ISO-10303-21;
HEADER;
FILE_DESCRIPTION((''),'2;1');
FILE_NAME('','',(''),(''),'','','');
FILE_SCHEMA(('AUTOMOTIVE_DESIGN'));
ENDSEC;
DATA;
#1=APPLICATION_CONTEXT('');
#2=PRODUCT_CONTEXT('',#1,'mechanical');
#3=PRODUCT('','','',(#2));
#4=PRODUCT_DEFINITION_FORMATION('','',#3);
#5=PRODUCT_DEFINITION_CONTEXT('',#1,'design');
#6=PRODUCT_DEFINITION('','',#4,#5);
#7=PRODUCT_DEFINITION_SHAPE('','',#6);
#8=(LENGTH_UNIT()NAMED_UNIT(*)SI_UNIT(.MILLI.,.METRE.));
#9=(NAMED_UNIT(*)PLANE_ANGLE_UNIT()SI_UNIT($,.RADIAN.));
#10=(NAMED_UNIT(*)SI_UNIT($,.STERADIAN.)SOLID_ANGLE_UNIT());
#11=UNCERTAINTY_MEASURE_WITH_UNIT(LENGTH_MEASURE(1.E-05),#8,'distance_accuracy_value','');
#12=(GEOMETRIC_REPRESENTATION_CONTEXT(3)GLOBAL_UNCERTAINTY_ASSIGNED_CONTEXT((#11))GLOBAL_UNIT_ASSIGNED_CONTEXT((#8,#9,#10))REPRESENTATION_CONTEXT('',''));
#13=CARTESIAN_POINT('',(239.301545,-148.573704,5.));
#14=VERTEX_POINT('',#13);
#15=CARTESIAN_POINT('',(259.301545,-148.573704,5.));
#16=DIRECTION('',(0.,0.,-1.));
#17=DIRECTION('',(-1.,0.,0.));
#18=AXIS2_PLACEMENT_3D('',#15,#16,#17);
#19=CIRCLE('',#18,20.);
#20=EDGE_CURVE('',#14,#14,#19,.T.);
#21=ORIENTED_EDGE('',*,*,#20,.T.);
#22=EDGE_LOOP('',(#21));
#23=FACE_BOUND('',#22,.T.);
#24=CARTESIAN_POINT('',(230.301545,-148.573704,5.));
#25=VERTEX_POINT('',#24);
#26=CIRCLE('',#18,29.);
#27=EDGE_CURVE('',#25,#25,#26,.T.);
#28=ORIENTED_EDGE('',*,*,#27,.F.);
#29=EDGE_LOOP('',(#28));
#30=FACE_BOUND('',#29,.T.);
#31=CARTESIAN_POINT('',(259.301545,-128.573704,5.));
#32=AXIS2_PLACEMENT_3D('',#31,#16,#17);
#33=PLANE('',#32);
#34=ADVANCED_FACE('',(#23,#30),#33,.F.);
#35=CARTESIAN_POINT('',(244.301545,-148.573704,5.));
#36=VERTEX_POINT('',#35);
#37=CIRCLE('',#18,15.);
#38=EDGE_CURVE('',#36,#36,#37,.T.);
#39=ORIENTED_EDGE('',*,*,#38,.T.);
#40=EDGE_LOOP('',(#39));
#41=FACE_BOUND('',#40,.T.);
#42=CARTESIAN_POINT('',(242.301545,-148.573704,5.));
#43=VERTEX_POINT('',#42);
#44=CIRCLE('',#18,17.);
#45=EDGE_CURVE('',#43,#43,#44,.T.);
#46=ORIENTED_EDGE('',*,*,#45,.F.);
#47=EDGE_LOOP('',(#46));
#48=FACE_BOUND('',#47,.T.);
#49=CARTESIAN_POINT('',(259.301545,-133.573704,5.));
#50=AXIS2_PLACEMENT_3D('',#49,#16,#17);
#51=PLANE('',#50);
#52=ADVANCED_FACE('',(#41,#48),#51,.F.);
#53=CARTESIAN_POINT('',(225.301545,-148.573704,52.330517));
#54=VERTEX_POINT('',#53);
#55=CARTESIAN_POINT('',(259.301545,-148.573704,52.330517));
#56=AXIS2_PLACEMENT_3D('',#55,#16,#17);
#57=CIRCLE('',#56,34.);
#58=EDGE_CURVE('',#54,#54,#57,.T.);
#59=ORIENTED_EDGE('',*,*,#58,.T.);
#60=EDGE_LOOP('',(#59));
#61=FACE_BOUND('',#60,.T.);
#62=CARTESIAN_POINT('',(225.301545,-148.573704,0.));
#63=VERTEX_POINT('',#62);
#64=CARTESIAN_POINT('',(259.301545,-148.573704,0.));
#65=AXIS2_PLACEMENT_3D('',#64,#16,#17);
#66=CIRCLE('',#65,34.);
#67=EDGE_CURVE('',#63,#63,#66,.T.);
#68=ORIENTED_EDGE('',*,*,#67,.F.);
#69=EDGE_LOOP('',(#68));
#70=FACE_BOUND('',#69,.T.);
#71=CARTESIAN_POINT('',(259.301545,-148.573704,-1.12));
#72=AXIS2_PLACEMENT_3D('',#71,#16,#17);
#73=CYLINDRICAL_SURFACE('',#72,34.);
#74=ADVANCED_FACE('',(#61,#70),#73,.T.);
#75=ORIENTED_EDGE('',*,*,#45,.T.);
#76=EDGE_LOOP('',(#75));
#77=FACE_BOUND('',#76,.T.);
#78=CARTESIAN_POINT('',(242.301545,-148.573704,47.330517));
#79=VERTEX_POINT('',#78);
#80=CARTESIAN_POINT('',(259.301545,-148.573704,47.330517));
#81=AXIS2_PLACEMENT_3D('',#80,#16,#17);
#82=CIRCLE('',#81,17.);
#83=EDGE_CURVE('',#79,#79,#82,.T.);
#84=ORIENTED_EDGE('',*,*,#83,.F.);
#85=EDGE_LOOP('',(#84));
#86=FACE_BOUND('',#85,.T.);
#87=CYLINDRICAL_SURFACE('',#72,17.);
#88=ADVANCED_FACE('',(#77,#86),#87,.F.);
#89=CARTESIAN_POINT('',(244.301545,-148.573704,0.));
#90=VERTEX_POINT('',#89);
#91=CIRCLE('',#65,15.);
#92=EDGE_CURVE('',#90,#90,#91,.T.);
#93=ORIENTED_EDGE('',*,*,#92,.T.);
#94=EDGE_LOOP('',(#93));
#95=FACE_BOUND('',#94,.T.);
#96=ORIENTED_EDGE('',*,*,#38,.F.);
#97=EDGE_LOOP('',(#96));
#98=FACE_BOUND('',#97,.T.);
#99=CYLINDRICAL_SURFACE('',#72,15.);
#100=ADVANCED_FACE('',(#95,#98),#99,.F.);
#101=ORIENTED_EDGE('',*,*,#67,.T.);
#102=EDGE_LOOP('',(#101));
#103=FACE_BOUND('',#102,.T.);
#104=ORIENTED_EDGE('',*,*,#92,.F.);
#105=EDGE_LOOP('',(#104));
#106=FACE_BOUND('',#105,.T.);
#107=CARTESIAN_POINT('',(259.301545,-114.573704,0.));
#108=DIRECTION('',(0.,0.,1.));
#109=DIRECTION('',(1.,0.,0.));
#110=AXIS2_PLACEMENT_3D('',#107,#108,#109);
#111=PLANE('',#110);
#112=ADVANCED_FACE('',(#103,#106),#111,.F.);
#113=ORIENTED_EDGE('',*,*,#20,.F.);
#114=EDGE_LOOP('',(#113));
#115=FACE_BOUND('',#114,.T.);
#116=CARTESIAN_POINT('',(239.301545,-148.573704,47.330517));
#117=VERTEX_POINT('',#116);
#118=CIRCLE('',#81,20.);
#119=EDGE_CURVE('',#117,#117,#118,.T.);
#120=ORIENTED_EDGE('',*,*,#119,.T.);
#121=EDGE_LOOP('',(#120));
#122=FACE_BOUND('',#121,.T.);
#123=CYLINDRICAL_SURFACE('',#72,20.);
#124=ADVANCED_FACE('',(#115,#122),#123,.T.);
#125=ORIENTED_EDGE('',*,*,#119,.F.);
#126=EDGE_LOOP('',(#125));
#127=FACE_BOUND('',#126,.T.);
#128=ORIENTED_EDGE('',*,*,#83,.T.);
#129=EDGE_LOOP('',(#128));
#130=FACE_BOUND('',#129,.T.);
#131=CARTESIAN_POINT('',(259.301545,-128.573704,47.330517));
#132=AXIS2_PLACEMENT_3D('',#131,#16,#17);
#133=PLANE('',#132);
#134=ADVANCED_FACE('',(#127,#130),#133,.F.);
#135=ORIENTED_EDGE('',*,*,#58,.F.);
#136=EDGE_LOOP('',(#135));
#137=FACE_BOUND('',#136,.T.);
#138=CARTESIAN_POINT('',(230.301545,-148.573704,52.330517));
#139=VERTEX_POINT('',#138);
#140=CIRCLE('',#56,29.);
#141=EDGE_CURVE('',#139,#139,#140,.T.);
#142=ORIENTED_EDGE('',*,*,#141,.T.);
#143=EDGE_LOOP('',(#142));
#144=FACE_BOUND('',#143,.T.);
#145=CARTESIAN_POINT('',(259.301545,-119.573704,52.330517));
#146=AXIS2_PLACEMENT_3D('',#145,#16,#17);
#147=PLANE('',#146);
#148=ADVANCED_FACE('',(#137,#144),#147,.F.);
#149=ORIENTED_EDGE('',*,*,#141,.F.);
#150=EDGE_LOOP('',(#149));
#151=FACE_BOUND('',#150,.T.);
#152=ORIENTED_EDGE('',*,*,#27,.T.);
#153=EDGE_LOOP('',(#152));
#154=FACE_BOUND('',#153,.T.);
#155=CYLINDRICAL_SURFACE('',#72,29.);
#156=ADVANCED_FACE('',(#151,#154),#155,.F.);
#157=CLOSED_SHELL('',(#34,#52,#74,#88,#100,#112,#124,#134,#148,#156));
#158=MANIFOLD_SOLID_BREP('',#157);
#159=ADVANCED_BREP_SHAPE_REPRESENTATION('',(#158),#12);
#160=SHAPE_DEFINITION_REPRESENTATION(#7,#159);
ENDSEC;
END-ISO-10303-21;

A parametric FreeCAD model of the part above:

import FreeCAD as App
import Part
import Sketcher
Q = App.Units.Quantity

doc = App.newDocument("Part")
body = doc.addObject("PartDesign::Body", "Body")

sketch1 = body.newObject("Sketcher::SketchObject", "Sketch")
sketch1.AttachmentSupport = (doc.getObject("YZ_Plane"), [""])
sketch1.MapMode = "FlatFace"
sketch1.AttachmentOffset = App.Placement(App.Vector(0, 0, 259.301545), App.Rotation())
sketch1.addGeometry([
    Part.LineSegment(App.Vector(-133.6, 0, 0), App.Vector(-133.6, 5, 0)),
    Part.LineSegment(App.Vector(-133.6, 5, 0), App.Vector(-131.6, 5, 0)),
    Part.LineSegment(App.Vector(-131.6, 5, 0), App.Vector(-131.6, 47.3, 0)),
    Part.LineSegment(App.Vector(-131.6, 47.3, 0), App.Vector(-128.6, 47.3, 0)),
    Part.LineSegment(App.Vector(-128.6, 47.3, 0), App.Vector(-128.6, 5, 0)),
    Part.LineSegment(App.Vector(-128.6, 5, 0), App.Vector(-119.6, 5, 0)),
    Part.LineSegment(App.Vector(-119.6, 5, 0), App.Vector(-119.6, 52.3, 0)),
    Part.LineSegment(App.Vector(-119.6, 52.3, 0), App.Vector(-114.6, 52.3, 0)),
    Part.LineSegment(App.Vector(-114.6, 52.3, 0), App.Vector(-114.6, 0, 0)),
    Part.LineSegment(App.Vector(-114.6, 0, 0), App.Vector(-133.6, 0, 0)),
], False)
sketch1.addGeometry(Part.LineSegment(App.Vector(-148.6, 0, 0), App.Vector(-148.6, 52.3, 0)), True)
sketch1.addConstraint([
    Sketcher.Constraint("Coincident", 0, 2, 1, 1),
    Sketcher.Constraint("Coincident", 1, 2, 2, 1),
    Sketcher.Constraint("Coincident", 2, 2, 3, 1),
    Sketcher.Constraint("Coincident", 3, 2, 4, 1),
    Sketcher.Constraint("Coincident", 4, 2, 5, 1),
    Sketcher.Constraint("Coincident", 5, 2, 6, 1),
    Sketcher.Constraint("Coincident", 6, 2, 7, 1),
    Sketcher.Constraint("Coincident", 7, 2, 8, 1),
    Sketcher.Constraint("Coincident", 8, 2, 9, 1),
    Sketcher.Constraint("Coincident", 9, 2, 0, 1),
    Sketcher.Constraint("Vertical", 0),
    Sketcher.Constraint("Horizontal", 1),
    Sketcher.Constraint("Vertical", 2),
    Sketcher.Constraint("Horizontal", 3),
    Sketcher.Constraint("Vertical", 4),
    Sketcher.Constraint("Horizontal", 5),
    Sketcher.Constraint("Vertical", 6),
    Sketcher.Constraint("Horizontal", 7),
    Sketcher.Constraint("Vertical", 8),
    Sketcher.Constraint("Horizontal", 9),
    Sketcher.Constraint("Vertical", 10),
    Sketcher.Constraint("PointOnObject", 8, 2, -1),
    Sketcher.Constraint("PointOnObject", 10, 1, -1),
    Sketcher.Constraint("Horizontal", 1, 2, 4, 2),
    Sketcher.Constraint("Horizontal", 7, 2, 10, 2),
    Sketcher.Constraint("Equal", 7, 0),
    Sketcher.Constraint("DistanceX", 1, 1, 1, 2, Q("2 mm")),
    Sketcher.Constraint("DistanceX", 3, 1, 3, 2, Q("3 mm")),
    Sketcher.Constraint("DistanceX", 5, 1, 5, 2, Q("9 mm")),
    Sketcher.Constraint("DistanceX", 7, 1, 7, 2, Q("5 mm")),
    Sketcher.Constraint("DistanceY", 3, 2, 6, 2, Q("5 mm")),
    Sketcher.Constraint("DistanceX", 10, 1, 9, 2, Q("15 mm")),
    Sketcher.Constraint("DistanceY", 2, 1, 2, 2, Q("42.330517 mm")),
    Sketcher.Constraint("DistanceX", 0, 2, -1, 1, Q("133.573704 mm")),
])
revolution = body.newObject("PartDesign::Revolution", "Revolution")
revolution.Profile = sketch1
revolution.ReferenceAxis = (sketch1, ["Axis0"])
revolution.Angle = 360

doc.recompute()
